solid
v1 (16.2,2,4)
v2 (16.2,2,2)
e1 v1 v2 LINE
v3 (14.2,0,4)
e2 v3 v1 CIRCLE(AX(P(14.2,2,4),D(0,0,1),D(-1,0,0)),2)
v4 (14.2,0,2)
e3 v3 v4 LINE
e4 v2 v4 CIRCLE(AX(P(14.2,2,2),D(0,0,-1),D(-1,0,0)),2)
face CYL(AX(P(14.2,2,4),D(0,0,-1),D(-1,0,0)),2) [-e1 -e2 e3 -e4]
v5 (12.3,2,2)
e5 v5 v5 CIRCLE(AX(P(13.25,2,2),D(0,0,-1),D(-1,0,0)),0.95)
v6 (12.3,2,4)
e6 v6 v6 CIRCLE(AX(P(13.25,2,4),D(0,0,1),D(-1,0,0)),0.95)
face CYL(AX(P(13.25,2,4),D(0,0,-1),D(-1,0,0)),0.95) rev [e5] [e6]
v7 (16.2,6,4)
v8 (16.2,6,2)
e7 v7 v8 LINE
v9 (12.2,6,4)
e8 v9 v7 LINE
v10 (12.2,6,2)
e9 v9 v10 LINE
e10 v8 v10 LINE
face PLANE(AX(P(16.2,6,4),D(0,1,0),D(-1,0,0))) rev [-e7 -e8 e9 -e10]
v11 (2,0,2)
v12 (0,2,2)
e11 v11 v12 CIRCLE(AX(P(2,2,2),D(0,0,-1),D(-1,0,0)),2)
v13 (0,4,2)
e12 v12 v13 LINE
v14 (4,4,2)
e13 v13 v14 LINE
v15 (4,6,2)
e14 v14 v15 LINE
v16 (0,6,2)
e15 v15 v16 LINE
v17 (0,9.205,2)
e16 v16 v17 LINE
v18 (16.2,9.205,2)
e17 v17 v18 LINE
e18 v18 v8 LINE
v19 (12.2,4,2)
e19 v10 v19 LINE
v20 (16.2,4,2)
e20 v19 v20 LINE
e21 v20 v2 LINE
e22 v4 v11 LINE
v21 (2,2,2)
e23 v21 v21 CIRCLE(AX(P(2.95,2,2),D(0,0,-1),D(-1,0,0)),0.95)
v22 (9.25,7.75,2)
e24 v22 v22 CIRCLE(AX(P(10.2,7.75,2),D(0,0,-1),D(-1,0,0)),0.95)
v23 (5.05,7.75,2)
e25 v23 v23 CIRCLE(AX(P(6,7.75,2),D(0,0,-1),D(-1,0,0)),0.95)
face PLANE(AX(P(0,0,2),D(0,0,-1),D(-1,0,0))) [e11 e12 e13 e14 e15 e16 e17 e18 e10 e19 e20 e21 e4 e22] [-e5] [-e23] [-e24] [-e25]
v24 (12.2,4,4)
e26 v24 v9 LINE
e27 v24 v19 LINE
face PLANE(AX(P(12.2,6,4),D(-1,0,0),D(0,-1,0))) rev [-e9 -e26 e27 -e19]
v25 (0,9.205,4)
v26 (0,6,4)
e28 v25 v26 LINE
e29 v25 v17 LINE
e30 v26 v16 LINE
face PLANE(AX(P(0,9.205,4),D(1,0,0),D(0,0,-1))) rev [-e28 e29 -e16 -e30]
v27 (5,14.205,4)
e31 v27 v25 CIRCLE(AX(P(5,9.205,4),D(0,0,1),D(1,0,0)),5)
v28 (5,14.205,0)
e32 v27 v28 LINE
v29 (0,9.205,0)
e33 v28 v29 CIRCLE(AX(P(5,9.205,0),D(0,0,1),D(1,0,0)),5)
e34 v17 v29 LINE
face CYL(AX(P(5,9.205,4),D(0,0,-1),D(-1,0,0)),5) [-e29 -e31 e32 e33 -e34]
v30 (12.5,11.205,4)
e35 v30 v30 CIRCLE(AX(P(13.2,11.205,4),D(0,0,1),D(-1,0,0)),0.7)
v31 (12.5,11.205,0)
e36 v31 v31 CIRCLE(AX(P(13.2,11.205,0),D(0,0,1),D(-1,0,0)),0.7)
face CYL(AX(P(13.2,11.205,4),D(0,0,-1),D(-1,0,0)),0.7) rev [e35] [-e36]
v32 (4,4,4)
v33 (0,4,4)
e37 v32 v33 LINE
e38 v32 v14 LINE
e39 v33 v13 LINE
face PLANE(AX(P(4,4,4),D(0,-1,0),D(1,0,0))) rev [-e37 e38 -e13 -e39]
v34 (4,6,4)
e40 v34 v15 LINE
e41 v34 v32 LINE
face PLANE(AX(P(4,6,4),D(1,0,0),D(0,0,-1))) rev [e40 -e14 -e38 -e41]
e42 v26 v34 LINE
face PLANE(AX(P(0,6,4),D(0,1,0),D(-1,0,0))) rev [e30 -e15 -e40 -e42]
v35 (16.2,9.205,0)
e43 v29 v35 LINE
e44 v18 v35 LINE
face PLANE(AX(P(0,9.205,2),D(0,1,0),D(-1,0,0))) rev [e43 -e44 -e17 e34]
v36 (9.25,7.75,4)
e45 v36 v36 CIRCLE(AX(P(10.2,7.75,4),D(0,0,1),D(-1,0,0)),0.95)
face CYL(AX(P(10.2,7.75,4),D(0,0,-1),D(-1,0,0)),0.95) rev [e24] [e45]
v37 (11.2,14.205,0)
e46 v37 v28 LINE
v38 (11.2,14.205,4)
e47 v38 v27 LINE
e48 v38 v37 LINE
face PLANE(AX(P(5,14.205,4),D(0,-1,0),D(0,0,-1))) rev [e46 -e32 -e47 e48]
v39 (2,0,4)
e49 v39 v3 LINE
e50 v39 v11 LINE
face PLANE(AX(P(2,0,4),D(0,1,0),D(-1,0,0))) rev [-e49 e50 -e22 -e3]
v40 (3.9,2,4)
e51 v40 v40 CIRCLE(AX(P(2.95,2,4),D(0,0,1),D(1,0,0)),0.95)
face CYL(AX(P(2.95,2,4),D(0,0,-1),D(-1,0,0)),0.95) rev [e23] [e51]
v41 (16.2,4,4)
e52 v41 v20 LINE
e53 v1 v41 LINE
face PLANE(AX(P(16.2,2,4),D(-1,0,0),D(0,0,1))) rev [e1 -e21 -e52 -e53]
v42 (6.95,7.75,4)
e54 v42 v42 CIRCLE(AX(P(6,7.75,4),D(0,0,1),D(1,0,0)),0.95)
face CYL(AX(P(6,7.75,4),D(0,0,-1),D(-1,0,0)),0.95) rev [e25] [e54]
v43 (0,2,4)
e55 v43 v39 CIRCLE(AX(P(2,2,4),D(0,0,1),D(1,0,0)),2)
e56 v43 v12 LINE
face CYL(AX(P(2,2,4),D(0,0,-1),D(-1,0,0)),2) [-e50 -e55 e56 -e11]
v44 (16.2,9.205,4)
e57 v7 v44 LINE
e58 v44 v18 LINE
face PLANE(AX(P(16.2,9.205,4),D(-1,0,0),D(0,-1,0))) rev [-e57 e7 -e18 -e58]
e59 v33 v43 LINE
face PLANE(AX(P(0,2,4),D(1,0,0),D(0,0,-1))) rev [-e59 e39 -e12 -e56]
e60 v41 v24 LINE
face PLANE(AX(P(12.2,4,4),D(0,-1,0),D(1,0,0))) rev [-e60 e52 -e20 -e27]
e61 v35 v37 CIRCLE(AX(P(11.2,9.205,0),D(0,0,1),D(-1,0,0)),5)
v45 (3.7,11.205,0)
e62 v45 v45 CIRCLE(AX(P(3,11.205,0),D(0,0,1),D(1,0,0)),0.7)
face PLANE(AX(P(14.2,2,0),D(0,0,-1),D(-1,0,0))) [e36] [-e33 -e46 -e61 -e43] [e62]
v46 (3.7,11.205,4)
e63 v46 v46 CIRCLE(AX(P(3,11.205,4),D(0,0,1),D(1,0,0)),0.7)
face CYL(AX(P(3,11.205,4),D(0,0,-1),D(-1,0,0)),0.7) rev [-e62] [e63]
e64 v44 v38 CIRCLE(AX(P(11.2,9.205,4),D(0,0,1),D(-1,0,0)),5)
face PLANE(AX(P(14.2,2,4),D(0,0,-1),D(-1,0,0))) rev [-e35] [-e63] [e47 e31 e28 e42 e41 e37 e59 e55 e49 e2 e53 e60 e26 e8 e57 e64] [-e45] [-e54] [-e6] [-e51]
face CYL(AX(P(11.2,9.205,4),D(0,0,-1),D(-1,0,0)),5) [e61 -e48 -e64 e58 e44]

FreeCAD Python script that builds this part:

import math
import FreeCAD as App
import Part
import Sketcher

doc = App.newDocument("Part")
params = doc.addObject("Spreadsheet::Sheet", "Params")
for row, (alias, value) in enumerate([
    ("sketch1_radius", "5 mm"),
    ("sketch1_radius2", "2 mm"),
    ("sketch1_diameter", "1.9 mm"),
    ("sketch1_diameter2", "1.4 mm"),
    ("sketch1_width", "4 mm"),
    ("pad1_length", "4 mm"),
    ("sketch2_width", "16.2 mm"),
    ("pocket1_length", "2 mm"),
], start=1):
    params.set(f"A{row}", alias)
    params.set(f"B{row}", "=" + value)
    params.setAlias(f"B{row}", alias)

body = doc.addObject("PartDesign::Body", "Body")

sketch1 = doc.addObject("Sketcher::SketchObject", "Sketch")
body.addObject(sketch1)
sketch1.AttachmentSupport = (doc.XY_Plane, [""])
sketch1.MapMode = "FlatFace"
sketch1.addGeometry(Part.LineSegment(App.Vector(16.2, 4, 0), App.Vector(12.2, 4, 0)), False)
sketch1.addGeometry(Part.LineSegment(App.Vector(12.2, 4, 0), App.Vector(12.2, 6, 0)), False)
sketch1.addGeometry(Part.LineSegment(App.Vector(12.2, 6, 0), App.Vector(16.2, 6, 0)), False)
sketch1.addGeometry(Part.LineSegment(App.Vector(16.2, 6, 0), App.Vector(16.2, 9.205, 0)), False)
sketch1.addGeometry(Part.ArcOfCircle(Part.Circle(App.Vector(11.2, 9.205, 0), App.Vector(0, 0, 1), 5), math.radians(0), math.radians(90)), False)
sketch1.addGeometry(Part.LineSegment(App.Vector(11.2, 14.205, 0), App.Vector(5, 14.205, 0)), False)
sketch1.addGeometry(Part.ArcOfCircle(Part.Circle(App.Vector(5, 9.205, 0), App.Vector(0, 0, 1), 5), math.radians(90), math.radians(180)), False)
sketch1.addGeometry(Part.LineSegment(App.Vector(0, 9.205, 0), App.Vector(0, 6, 0)), False)
sketch1.addGeometry(Part.LineSegment(App.Vector(0, 6, 0), App.Vector(4, 6, 0)), False)
sketch1.addGeometry(Part.LineSegment(App.Vector(4, 6, 0), App.Vector(4, 4, 0)), False)
sketch1.addGeometry(Part.LineSegment(App.Vector(4, 4, 0), App.Vector(0, 4, 0)), False)
sketch1.addGeometry(Part.LineSegment(App.Vector(0, 4, 0), App.Vector(0, 2, 0)), False)
sketch1.addGeometry(Part.ArcOfCircle(Part.Circle(App.Vector(2, 2, 0), App.Vector(0, 0, 1), 2), math.radians(-180), math.radians(-90)), False)
sketch1.addGeometry(Part.LineSegment(App.Vector(2, 0, 0), App.Vector(14.2, 0, 0)), False)
sketch1.addGeometry(Part.ArcOfCircle(Part.Circle(App.Vector(14.2, 2, 0), App.Vector(0, 0, 1), 2), math.radians(-90), math.radians(0)), False)
sketch1.addGeometry(Part.LineSegment(App.Vector(16.2, 2, 0), App.Vector(16.2, 4, 0)), False)
sketch1.addGeometry(Part.Circle(App.Vector(13.25, 2, 0), App.Vector(0, 0, 1), 0.95), False)
sketch1.addGeometry(Part.Circle(App.Vector(2.95, 2, 0), App.Vector(0, 0, 1), 0.95), False)
sketch1.addGeometry(Part.Circle(App.Vector(10.2, 7.75, 0), App.Vector(0, 0, 1), 0.95), False)
sketch1.addGeometry(Part.Circle(App.Vector(13.2, 11.205, 0), App.Vector(0, 0, 1), 0.7), False)
sketch1.addGeometry(Part.Circle(App.Vector(6, 7.75, 0), App.Vector(0, 0, 1), 0.95), False)
sketch1.addGeometry(Part.Circle(App.Vector(3, 11.205, 0), App.Vector(0, 0, 1), 0.7), False)
sketch1.addConstraint(Sketcher.Constraint("Coincident", 0, 2, 1, 1))
sketch1.addConstraint(Sketcher.Constraint("Coincident", 1, 2, 2, 1))
sketch1.addConstraint(Sketcher.Constraint("Coincident", 2, 2, 3, 1))
sketch1.addConstraint(Sketcher.Constraint("Tangent", 3, 2, 4, 1))
sketch1.addConstraint(Sketcher.Constraint("Tangent", 4, 2, 5, 1))
sketch1.addConstraint(Sketcher.Constraint("Tangent", 5, 2, 6, 1))
sketch1.addConstraint(Sketcher.Constraint("Tangent", 6, 2, 7, 1))
sketch1.addConstraint(Sketcher.Constraint("Coincident", 7, 2, 8, 1))
sketch1.addConstraint(Sketcher.Constraint("Coincident", 8, 2, 9, 1))
sketch1.addConstraint(Sketcher.Constraint("Coincident", 9, 2, 10, 1))
sketch1.addConstraint(Sketcher.Constraint("Coincident", 10, 2, 11, 1))
sketch1.addConstraint(Sketcher.Constraint("Tangent", 11, 2, 12, 1))
sketch1.addConstraint(Sketcher.Constraint("Tangent", 12, 2, 13, 1))
sketch1.addConstraint(Sketcher.Constraint("Tangent", 13, 2, 14, 1))
sketch1.addConstraint(Sketcher.Constraint("Tangent", 14, 2, 15, 1))
sketch1.addConstraint(Sketcher.Constraint("Coincident", 15, 2, 0, 1))
sketch1.addConstraint(Sketcher.Constraint("Horizontal", 0))
sketch1.addConstraint(Sketcher.Constraint("Vertical", 1))
sketch1.addConstraint(Sketcher.Constraint("Horizontal", 2))
sketch1.addConstraint(Sketcher.Constraint("Vertical", 3))
sketch1.addConstraint(Sketcher.Constraint("Horizontal", 5))
sketch1.addConstraint(Sketcher.Constraint("Vertical", 7))
sketch1.addConstraint(Sketcher.Constraint("Horizontal", 8))
sketch1.addConstraint(Sketcher.Constraint("Vertical", 9))
sketch1.addConstraint(Sketcher.Constraint("Horizontal", 10))
sketch1.addConstraint(Sketcher.Constraint("Vertical", 11))
sketch1.addConstraint(Sketcher.Constraint("Horizontal", 13))
sketch1.addConstraint(Sketcher.Constraint("Vertical", 15))
sketch1.addConstraint(Sketcher.Constraint("Equal", 4, 6))
sketch1.addConstraint(Sketcher.Constraint("Equal", 12, 14))
sketch1.addConstraint(Sketcher.Constraint("Equal", 16, 17))
sketch1.addConstraint(Sketcher.Constraint("Equal", 17, 18))
sketch1.addConstraint(Sketcher.Constraint("Equal", 18, 20))
sketch1.addConstraint(Sketcher.Constraint("Equal", 19, 21))
sketch1.addConstraint(Sketcher.Constraint("PointOnObject", 6, 2, -2))
sketch1.addConstraint(Sketcher.Constraint("PointOnObject", 10, 2, -2))
sketch1.addConstraint(Sketcher.Constraint("PointOnObject", 12, 2, -1))
sketch1.addConstraint(Sketcher.Constraint("Horizontal", 14, 3, 16, 3))
sketch1.addConstraint(Sketcher.Constraint("Horizontal", 16, 3, 17, 3))
sketch1.addConstraint(Sketcher.Constraint("Horizontal", 18, 3, 20, 3))
sketch1.addConstraint(Sketcher.Constraint("Horizontal", 19, 3, 21, 3))
sketch1.addConstraint(Sketcher.Constraint("Horizontal", 2, 2, 7, 2))
sketch1.addConstraint(Sketcher.Constraint("Horizontal", 0, 2, 9, 2))
sketch1.addConstraint(Sketcher.Constraint("Vertical", 3, 2, 14, 2))
sketch1.addConstraint(Sketcher.Constraint("Equal", 2, 8))
sketch1.addConstraint(Sketcher.Constraint("Equal", 9, 11))
sketch1.addConstraint(Sketcher.Constraint("Radius", 4, 5.0))
sketch1.addConstraint(Sketcher.Constraint("Radius", 12, 2.0))
sketch1.addConstraint(Sketcher.Constraint("Diameter", 16, 1.9))
sketch1.addConstraint(Sketcher.Constraint("Diameter", 19, 1.4))
sketch1.addConstraint(Sketcher.Constraint("DistanceX", 0, 2, 0, 1, 4.0))
sketch1.addConstraint(Sketcher.Constraint("DistanceY", 1, 1, 1, 2, 2.0))
sketch1.addConstraint(Sketcher.Constraint("DistanceX", 5, 2, 5, 1, 6.2))
sketch1.addConstraint(Sketcher.Constraint("DistanceX", -1, 1, 20, 3, 6.0))
sketch1.addConstraint(Sketcher.Constraint("DistanceX", -1, 1, 21, 3, 3.0))
sketch1.addConstraint(Sketcher.Constraint("DistanceX", 18, 3, 4, 3, 1.0))
sketch1.addConstraint(Sketcher.Constraint("DistanceX", 4, 3, 19, 3, 2.0))
sketch1.addConstraint(Sketcher.Constraint("DistanceY", 4, 3, 19, 3, 2.0))
sketch1.addConstraint(Sketcher.Constraint("DistanceX", 17, 3, 16, 3, 10.3))
sketch1.addConstraint(Sketcher.Constraint("DistanceY", 3, 1, 3, 2, 3.205))
sketch1.addConstraint(Sketcher.Constraint("DistanceX", -1, 1, 16, 3, 13.25))
sketch1.addConstraint(Sketcher.Constraint("DistanceY", -1, 1, 18, 3, 7.75))
sketch1.setExpression("Constraints[46]", "Params.sketch1_radius")
sketch1.setExpression("Constraints[47]", "Params.sketch1_radius2")
sketch1.setExpression("Constraints[48]", "Params.sketch1_diameter")
sketch1.setExpression("Constraints[49]", "Params.sketch1_diameter2")
sketch1.setExpression("Constraints[50]", "Params.sketch1_width")
pad1 = doc.addObject("PartDesign::Pad", "Pad")
body.addObject(pad1)
pad1.Profile = sketch1
pad1.setExpression("Length", "Params.pad1_length")

sketch2 = doc.addObject("Sketcher::SketchObject", "Sketch001")
body.addObject(sketch2)
sketch2.AttachmentSupport = (doc.XY_Plane, [""])
sketch2.MapMode = "FlatFace"
sketch2.addGeometry(Part.LineSegment(App.Vector(16.2, 9.205, 0), App.Vector(16.2, 0, 0)), False)
sketch2.addGeometry(Part.LineSegment(App.Vector(16.2, 0, 0), App.Vector(0, 0, 0)), False)
sketch2.addGeometry(Part.LineSegment(App.Vector(0, 0, 0), App.Vector(0, 9.205, 0)), False)
sketch2.addGeometry(Part.LineSegment(App.Vector(0, 9.205, 0), App.Vector(16.2, 9.205, 0)), False)
sketch2.addConstraint(Sketcher.Constraint("Coincident", 0, 2, 1, 1))
sketch2.addConstraint(Sketcher.Constraint("Coincident", 1, 2, 2, 1))
sketch2.addConstraint(Sketcher.Constraint("Coincident", 2, 2, 3, 1))
sketch2.addConstraint(Sketcher.Constraint("Coincident", 3, 2, 0, 1))
sketch2.addConstraint(Sketcher.Constraint("Vertical", 0))
sketch2.addConstraint(Sketcher.Constraint("Horizontal", 1))
sketch2.addConstraint(Sketcher.Constraint("Vertical", 2))
sketch2.addConstraint(Sketcher.Constraint("Horizontal", 3))
sketch2.addConstraint(Sketcher.Constraint("Coincident", 1, 2, -1, 1))
sketch2.addConstraint(Sketcher.Constraint("DistanceX", 1, 2, 1, 1, 16.2))
sketch2.addConstraint(Sketcher.Constraint("DistanceY", 0, 2, 0, 1, 9.205))
sketch2.setExpression("Constraints[9]", "Params.sketch2_width")
pocket1 = doc.addObject("PartDesign::Pocket", "Pocket")
body.addObject(pocket1)
pocket1.Profile = sketch2
pocket1.setExpression("Length", "Params.pocket1_length")
pocket1.Reversed = True

doc.recompute()
